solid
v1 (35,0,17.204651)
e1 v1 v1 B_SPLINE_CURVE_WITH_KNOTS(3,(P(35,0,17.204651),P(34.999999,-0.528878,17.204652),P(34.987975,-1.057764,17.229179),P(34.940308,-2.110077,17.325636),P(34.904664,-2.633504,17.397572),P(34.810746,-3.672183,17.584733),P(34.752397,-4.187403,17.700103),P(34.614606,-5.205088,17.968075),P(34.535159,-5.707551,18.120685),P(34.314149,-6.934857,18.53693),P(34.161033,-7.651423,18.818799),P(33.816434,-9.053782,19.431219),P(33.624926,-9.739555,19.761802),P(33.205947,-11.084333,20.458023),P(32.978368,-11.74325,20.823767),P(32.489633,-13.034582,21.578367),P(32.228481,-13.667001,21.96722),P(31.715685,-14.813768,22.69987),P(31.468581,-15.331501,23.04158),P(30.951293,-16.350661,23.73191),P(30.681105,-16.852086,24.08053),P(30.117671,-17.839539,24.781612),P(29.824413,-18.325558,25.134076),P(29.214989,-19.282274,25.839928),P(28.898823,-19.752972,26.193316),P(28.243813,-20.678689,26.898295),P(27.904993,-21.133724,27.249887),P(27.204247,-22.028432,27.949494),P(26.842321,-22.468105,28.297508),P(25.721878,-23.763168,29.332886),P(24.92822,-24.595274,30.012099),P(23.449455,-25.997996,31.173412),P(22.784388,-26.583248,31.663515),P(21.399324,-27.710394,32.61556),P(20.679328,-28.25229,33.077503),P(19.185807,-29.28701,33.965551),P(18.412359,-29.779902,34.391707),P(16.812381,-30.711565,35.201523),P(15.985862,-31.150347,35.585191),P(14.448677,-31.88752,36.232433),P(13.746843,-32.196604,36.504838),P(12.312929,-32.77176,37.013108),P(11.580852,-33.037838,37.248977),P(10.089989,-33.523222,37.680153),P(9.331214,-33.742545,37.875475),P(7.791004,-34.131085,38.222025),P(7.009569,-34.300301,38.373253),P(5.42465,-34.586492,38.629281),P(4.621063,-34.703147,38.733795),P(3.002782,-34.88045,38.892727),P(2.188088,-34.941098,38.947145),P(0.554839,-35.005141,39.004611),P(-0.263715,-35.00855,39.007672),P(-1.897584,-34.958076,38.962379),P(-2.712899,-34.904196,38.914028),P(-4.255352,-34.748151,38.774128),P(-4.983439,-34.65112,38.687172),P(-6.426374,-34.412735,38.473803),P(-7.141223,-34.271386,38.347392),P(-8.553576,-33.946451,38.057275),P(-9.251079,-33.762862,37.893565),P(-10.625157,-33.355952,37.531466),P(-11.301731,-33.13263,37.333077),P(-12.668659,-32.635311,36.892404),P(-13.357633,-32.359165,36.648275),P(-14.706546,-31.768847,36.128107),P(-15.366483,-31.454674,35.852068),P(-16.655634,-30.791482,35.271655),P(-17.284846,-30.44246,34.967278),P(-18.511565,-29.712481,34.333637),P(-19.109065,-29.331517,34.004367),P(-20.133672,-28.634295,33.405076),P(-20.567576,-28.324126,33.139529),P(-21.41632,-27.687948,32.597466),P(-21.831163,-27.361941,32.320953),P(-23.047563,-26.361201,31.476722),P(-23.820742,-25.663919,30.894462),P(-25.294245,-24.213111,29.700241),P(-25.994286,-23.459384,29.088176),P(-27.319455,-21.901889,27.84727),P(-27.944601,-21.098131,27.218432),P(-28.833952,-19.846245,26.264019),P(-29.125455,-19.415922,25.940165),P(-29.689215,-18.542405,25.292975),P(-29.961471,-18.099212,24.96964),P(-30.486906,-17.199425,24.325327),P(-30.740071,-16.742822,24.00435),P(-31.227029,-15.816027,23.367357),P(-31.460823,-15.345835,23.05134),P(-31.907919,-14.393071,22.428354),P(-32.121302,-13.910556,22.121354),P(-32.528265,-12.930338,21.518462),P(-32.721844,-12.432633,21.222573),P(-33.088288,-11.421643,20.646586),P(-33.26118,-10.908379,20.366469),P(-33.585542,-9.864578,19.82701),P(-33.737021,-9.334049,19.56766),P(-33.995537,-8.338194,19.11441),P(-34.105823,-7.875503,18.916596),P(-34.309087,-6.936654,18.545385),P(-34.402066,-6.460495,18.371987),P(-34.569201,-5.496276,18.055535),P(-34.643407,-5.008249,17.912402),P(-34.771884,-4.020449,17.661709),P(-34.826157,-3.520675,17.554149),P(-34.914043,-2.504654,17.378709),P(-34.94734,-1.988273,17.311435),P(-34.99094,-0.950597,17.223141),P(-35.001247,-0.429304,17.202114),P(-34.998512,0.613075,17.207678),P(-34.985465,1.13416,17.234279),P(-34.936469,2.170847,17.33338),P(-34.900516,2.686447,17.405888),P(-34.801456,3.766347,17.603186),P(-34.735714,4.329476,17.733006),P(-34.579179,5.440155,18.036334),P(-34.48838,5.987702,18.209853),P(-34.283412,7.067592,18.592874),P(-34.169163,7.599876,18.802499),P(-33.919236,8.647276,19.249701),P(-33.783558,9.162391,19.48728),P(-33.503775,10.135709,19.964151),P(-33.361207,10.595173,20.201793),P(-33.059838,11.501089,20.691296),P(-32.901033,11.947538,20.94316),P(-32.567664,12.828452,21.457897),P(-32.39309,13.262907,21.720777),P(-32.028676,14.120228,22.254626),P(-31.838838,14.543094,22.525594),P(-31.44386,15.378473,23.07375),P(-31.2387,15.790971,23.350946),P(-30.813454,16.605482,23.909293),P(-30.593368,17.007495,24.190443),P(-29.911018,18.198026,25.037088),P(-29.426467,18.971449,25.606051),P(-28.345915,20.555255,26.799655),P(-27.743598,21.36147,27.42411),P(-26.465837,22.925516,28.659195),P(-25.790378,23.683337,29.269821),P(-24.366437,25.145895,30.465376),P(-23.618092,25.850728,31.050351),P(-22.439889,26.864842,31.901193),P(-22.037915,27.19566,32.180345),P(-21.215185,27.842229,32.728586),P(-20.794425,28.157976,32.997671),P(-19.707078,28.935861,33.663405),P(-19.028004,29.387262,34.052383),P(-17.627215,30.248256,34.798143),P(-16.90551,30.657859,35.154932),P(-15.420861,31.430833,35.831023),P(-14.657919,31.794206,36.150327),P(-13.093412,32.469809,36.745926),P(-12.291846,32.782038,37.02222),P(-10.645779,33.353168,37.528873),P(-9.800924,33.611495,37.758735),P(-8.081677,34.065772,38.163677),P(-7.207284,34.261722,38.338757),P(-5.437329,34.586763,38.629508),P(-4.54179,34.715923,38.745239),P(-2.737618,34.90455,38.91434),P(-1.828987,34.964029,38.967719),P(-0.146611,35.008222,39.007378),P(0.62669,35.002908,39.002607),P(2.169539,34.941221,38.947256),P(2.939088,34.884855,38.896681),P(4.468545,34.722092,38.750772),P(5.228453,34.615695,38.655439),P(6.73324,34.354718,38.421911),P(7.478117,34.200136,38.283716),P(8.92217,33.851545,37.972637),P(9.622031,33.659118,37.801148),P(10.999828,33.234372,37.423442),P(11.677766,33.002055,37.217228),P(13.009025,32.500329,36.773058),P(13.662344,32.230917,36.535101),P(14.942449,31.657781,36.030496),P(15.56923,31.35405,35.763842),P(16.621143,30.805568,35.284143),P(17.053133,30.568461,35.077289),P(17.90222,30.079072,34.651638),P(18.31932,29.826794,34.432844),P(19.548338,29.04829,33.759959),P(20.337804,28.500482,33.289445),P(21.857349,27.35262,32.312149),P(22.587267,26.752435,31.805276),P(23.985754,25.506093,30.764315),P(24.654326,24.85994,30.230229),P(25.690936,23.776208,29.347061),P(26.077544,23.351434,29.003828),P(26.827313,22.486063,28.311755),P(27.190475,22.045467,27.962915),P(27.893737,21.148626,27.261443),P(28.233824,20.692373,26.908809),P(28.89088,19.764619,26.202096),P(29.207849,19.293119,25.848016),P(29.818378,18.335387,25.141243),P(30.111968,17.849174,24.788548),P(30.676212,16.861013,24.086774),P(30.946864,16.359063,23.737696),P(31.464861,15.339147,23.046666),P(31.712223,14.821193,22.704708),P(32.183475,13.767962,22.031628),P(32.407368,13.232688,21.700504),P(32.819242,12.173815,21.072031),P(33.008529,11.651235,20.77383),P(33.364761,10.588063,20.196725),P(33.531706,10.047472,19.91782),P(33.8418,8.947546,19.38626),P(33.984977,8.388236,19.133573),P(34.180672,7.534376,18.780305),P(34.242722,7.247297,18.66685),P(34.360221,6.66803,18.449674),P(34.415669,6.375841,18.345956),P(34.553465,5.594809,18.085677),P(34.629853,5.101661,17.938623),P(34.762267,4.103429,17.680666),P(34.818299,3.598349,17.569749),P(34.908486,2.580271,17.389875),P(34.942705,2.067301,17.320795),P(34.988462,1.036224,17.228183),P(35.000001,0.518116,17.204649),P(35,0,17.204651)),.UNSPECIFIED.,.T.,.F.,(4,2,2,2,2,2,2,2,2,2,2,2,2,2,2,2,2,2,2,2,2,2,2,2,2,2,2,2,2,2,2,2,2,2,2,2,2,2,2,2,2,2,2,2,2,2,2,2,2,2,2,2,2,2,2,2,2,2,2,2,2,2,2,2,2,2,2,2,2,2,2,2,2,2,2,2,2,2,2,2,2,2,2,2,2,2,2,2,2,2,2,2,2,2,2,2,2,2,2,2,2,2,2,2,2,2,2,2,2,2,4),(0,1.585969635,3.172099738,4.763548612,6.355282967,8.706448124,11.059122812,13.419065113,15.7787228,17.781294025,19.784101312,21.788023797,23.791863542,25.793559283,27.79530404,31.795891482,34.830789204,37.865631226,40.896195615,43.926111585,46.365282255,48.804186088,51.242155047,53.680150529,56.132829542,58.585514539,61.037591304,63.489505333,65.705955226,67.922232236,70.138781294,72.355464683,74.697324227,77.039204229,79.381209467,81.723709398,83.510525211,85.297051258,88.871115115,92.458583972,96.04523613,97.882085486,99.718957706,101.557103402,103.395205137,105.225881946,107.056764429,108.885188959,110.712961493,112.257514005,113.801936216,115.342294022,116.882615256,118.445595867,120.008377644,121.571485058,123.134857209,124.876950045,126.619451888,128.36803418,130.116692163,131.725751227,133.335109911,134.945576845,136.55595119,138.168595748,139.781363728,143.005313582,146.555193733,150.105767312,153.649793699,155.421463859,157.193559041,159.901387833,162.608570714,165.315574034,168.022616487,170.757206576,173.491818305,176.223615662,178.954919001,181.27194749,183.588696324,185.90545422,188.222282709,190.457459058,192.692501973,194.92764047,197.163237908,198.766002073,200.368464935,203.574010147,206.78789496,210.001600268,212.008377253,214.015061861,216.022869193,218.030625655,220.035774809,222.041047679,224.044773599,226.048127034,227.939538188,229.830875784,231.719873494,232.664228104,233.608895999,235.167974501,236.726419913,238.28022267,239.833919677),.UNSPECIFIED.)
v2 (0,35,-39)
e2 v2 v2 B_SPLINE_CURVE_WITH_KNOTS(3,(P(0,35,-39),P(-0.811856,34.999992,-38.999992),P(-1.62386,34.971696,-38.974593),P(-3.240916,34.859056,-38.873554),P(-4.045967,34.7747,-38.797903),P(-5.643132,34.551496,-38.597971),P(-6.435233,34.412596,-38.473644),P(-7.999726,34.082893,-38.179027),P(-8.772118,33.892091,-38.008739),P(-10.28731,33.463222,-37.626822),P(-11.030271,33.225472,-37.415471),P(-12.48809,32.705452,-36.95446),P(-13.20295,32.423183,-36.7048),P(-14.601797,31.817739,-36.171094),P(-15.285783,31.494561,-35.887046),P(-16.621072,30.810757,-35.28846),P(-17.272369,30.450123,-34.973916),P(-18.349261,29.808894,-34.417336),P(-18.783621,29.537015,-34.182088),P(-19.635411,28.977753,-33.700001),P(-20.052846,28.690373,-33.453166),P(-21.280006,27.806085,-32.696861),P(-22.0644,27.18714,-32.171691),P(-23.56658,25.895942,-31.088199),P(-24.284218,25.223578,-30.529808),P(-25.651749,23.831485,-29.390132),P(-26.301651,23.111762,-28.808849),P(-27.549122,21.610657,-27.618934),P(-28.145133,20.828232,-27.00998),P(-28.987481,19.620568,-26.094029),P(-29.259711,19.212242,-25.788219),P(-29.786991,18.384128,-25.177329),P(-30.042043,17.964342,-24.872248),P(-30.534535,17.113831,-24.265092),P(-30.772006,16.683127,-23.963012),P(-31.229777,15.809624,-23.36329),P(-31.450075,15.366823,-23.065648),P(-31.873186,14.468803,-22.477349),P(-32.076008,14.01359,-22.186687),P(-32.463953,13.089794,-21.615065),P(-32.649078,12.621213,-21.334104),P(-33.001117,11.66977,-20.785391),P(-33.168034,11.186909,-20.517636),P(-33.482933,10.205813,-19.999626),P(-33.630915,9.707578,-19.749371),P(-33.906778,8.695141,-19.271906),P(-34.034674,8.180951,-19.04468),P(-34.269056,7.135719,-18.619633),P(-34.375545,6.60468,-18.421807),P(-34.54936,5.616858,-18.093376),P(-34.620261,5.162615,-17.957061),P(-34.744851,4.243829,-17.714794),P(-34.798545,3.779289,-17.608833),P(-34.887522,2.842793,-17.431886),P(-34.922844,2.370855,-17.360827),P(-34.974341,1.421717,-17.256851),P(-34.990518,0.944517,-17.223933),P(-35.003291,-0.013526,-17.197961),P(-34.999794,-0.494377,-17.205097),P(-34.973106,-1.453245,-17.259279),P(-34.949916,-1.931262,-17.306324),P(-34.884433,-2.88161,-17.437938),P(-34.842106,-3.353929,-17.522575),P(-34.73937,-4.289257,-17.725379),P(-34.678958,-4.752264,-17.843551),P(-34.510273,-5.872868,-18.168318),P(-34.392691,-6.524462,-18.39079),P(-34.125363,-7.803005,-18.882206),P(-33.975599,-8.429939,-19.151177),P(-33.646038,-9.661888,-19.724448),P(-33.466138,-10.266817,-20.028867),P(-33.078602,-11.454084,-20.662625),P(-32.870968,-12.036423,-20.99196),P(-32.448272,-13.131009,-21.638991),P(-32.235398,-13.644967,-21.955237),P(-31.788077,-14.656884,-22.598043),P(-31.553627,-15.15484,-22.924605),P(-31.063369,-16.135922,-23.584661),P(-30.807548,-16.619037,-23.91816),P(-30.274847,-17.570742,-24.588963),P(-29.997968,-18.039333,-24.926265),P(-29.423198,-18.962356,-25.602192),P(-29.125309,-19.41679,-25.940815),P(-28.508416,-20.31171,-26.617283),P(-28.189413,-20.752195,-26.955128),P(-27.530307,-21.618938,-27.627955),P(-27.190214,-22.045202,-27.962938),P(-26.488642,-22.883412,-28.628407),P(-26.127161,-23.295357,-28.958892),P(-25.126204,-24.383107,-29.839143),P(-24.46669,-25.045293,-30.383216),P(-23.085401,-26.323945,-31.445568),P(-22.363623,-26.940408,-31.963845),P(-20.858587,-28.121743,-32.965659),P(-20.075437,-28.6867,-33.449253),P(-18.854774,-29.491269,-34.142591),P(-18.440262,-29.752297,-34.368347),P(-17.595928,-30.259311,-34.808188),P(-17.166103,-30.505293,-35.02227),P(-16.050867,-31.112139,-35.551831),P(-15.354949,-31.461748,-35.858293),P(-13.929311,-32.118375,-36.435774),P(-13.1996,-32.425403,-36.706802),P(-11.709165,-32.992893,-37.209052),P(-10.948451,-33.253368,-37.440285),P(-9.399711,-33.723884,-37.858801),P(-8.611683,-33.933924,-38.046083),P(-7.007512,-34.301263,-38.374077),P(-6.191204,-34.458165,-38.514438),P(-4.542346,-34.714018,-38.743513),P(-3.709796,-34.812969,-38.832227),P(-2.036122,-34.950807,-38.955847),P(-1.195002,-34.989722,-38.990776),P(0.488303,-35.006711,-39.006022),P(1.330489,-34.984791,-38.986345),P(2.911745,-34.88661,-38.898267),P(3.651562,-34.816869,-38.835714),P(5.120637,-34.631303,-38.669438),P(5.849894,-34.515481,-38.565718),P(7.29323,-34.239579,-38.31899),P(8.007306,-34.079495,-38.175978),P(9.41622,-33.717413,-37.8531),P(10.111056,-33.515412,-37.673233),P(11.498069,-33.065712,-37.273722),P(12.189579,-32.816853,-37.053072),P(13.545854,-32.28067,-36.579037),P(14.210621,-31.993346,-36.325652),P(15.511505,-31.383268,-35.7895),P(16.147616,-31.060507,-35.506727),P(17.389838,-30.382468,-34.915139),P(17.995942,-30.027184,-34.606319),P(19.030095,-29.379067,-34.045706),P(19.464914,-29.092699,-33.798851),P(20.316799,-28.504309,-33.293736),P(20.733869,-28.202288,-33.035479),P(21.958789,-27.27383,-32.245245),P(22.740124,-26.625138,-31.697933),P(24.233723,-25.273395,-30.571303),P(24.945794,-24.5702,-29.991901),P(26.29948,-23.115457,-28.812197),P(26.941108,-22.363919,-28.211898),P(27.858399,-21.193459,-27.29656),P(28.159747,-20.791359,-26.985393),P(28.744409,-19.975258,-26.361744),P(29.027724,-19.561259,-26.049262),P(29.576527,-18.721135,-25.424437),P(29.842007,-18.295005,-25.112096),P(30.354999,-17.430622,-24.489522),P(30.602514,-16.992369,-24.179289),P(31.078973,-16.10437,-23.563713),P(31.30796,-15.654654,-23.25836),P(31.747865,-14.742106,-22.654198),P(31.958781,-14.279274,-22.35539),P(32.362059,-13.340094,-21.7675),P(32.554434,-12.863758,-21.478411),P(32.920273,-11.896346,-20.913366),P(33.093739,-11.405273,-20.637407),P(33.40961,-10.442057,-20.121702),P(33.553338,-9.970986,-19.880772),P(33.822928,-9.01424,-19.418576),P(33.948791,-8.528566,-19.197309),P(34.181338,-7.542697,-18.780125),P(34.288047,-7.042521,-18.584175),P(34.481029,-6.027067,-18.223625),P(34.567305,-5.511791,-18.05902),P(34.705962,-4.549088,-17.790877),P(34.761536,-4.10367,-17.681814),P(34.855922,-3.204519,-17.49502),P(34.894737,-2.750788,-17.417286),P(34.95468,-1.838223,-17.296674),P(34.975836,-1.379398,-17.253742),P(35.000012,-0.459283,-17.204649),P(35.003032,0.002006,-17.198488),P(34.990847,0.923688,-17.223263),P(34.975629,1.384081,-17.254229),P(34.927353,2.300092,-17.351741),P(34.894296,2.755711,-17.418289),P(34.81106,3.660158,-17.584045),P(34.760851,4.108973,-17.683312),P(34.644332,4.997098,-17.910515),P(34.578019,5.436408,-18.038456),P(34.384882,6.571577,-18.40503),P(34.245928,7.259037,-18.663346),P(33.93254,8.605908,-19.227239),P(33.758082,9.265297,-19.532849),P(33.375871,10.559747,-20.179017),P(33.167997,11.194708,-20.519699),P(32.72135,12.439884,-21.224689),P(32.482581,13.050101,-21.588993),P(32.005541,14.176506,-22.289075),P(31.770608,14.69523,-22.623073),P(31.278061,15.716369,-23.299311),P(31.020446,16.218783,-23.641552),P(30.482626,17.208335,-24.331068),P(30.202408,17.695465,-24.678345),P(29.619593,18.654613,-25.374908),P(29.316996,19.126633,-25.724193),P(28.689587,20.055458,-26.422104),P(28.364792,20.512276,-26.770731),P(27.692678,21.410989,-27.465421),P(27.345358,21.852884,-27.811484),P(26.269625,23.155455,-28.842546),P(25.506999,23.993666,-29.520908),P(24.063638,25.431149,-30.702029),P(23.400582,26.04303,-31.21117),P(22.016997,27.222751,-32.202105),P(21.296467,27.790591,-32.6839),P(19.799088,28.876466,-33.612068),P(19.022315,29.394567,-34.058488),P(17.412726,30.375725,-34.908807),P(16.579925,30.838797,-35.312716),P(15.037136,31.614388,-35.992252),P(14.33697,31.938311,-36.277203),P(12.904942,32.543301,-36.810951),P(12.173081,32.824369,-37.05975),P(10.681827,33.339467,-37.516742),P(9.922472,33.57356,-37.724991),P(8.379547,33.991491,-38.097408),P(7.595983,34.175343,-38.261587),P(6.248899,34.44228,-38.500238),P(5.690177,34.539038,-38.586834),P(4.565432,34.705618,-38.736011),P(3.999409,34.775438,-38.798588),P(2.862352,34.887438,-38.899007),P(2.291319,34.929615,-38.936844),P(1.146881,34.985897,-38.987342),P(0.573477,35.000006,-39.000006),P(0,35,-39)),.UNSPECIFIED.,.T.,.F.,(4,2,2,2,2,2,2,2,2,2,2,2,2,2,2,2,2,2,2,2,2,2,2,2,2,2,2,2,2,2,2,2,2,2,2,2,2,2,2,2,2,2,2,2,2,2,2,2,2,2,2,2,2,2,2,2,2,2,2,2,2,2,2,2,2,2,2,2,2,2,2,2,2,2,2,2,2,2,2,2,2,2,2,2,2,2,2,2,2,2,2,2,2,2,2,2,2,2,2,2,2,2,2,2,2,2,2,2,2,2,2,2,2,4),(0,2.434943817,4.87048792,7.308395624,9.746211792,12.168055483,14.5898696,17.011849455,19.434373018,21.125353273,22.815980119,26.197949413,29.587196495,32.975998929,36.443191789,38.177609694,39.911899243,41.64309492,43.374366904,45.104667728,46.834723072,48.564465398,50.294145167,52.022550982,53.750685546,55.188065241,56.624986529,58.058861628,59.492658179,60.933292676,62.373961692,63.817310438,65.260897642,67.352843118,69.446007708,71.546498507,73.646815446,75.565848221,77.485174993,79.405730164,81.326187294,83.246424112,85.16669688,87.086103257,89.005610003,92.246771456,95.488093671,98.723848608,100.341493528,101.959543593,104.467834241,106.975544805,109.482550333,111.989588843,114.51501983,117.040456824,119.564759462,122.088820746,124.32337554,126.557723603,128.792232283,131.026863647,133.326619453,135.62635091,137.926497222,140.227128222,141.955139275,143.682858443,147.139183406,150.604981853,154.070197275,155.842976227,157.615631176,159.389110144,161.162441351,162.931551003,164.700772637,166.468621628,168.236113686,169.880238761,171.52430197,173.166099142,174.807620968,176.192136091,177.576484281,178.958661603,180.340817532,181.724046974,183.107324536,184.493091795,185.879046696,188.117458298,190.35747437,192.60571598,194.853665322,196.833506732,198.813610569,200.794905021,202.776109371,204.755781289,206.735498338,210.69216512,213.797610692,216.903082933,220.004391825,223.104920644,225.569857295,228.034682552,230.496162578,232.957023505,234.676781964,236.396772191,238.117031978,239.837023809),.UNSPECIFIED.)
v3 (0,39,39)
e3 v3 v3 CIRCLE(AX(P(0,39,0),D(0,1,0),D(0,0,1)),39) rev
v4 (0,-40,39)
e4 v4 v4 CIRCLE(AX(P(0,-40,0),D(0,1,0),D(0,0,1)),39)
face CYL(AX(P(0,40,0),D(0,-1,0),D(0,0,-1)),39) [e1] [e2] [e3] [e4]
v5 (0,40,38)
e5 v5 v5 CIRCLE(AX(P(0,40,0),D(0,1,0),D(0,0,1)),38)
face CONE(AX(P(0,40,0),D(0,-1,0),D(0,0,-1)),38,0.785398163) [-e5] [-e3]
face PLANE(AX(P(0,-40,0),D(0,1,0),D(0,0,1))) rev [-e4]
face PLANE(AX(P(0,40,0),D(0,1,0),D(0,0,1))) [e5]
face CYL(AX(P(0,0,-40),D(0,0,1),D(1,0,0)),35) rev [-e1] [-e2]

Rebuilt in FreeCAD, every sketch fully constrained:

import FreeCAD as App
import Part
import Sketcher
from FreeCAD import Vector


def edges_at(feature, points):
    """Names of the edges that pass closest to the given points."""
    edges = feature.Shape.Edges
    near = lambda p: min(range(len(edges)), key=lambda i: edges[i].distToShape(Part.Vertex(*p))[0])
    return sorted({f"Edge{near(p) + 1}" for p in points})

doc = App.newDocument("Part")
params = doc.addObject("Spreadsheet::Sheet", "Params")
for row, (alias, value) in enumerate([
    ("sketch1_diameter", "78 mm"),
    ("pad1_length", "80 mm"),
    ("sketch2_diameter", "70 mm"),
    ("pocket1_length", "80 mm"),
    ("chamfer_size", "1 mm"),
], start=1):
    params.set(f"A{row}", alias)
    params.set(f"B{row}", "=" + value)
    params.setAlias(f"B{row}", alias)

body = doc.addObject("PartDesign::Body", "Body")

sketch1 = body.newObject("Sketcher::SketchObject", "Sketch")
sketch1.AttachmentSupport = (doc.getObject("XZ_Plane"), [""])
sketch1.MapMode = "FlatFace"
sketch1.addGeometry(Part.Circle(Vector(0, 0, 0), Vector(0, 0, 1), 39), False)
sketch1.addConstraint(Sketcher.Constraint("Coincident", 0, 3, -1, 1))
sketch1.addConstraint(Sketcher.Constraint("Diameter", 0, 78.0))
sketch1.setExpression("Constraints[1]", "Params.sketch1_diameter")
pad1 = body.newObject("PartDesign::Pad", "Pad")
pad1.Profile = sketch1
pad1.setExpression("Length", "Params.pad1_length")
pad1.Midplane = True

sketch2 = body.newObject("Sketcher::SketchObject", "Sketch001")
sketch2.AttachmentSupport = (doc.getObject("XY_Plane"), [""])
sketch2.MapMode = "FlatFace"
sketch2.addGeometry(Part.Circle(Vector(0, 0, 0), Vector(0, 0, 1), 35), False)
sketch2.addConstraint(Sketcher.Constraint("Coincident", 0, 3, -1, 1))
sketch2.addConstraint(Sketcher.Constraint("Diameter", 0, 70.0))
sketch2.setExpression("Constraints[1]", "Params.sketch2_diameter")
pocket1 = body.newObject("PartDesign::Pocket", "Pocket")
pocket1.Profile = sketch2
pocket1.setExpression("Length", "Params.pocket1_length")
pocket1.Midplane = True
doc.recompute()

chamfer = body.newObject("PartDesign::Chamfer", "Chamfer")
chamfer.Base = (pocket1, edges_at(pocket1, [(0, 40, -39)]))
chamfer.setExpression("Size", "Params.chamfer_size")

doc.recompute()
